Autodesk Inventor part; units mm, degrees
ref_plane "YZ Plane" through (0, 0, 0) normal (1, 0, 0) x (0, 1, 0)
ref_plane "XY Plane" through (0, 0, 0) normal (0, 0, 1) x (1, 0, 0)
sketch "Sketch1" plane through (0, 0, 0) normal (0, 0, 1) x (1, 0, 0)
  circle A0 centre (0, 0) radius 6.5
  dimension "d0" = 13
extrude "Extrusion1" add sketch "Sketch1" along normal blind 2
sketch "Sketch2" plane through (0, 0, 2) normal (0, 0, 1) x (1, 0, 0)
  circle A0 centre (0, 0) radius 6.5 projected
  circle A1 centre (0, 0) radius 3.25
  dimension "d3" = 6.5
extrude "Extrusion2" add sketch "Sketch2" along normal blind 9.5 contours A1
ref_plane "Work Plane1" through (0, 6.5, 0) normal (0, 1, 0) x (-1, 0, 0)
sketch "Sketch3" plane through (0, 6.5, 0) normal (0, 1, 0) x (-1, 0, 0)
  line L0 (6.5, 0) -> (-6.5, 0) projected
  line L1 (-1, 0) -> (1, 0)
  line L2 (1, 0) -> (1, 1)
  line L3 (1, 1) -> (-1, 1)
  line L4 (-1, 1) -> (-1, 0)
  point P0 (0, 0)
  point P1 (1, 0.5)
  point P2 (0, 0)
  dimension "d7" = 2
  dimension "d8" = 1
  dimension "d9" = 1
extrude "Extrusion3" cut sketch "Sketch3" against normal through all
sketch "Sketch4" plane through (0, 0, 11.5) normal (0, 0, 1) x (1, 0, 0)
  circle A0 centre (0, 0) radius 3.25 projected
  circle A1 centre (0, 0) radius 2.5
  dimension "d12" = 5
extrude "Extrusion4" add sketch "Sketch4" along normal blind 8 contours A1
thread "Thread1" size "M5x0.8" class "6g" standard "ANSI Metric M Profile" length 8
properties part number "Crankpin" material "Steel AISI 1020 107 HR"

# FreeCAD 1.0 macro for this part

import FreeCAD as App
import Part
import Sketcher
Q = App.Units.Quantity


def add_polygon(sketch, points):
    """Adds a closed chain of lines whose ends are joined by coincident constraints."""
    first, n = sketch.GeometryCount, len(points)
    for a, b in zip(points, points[1:] + points[:1]):
        sketch.addGeometry(Part.LineSegment(App.Vector(*a, 0), App.Vector(*b, 0)), False)
    for i in range(n):
        sketch.addConstraint(Sketcher.Constraint("Coincident", first + i, 2, first + (i + 1) % n, 1))

doc = App.newDocument("Part")
body = doc.addObject("PartDesign::Body", "Body")

# Sketch on XY plane
sketch1 = body.newObject("Sketcher::SketchObject", "Sketch")
sketch1.AttachmentSupport = (doc.getObject("XY_Plane"), [""])
sketch1.MapMode = "FlatFace"
sketch1.addGeometry(Part.Circle(App.Vector(0, 0, 0), App.Vector(0, 0, 1), 6), False)
sketch1.addConstraint(Sketcher.Constraint("Coincident", 0, 3, -1, 1))
sketch1.addConstraint(Sketcher.Constraint("Diameter", 0, Q("13 mm")))
pad1 = body.newObject("PartDesign::Pad", "Pad")
pad1.Profile = sketch1
pad1.Length = 2

# Sketch on XY plane
sketch2 = body.newObject("Sketcher::SketchObject", "Sketch001")
sketch2.AttachmentSupport = (doc.getObject("XY_Plane"), [""])
sketch2.MapMode = "FlatFace"
sketch2.AttachmentOffset = App.Placement(App.Vector(0, 0, 2), App.Rotation())
sketch2.addGeometry(Part.Circle(App.Vector(0, 0, 0), App.Vector(0, 0, 1), 3.2), False)
sketch2.addConstraint(Sketcher.Constraint("Coincident", 0, 3, -1, 1))
sketch2.addConstraint(Sketcher.Constraint("Diameter", 0, Q("6.5 mm")))
pad2 = body.newObject("PartDesign::Pad", "Pad001")
pad2.Profile = sketch2
pad2.Length = 9.5

# Sketch on XZ plane
sketch3 = body.newObject("Sketcher::SketchObject", "Sketch002")
sketch3.AttachmentSupport = (doc.getObject("XZ_Plane"), [""])
sketch3.MapMode = "FlatFace"
sketch3.AttachmentOffset = App.Placement(App.Vector(0, 0, -6.5), App.Rotation())
add_polygon(sketch3, [(1, 0), (-1, 0), (-1, 1), (1, 1)])  # lines 0-3
sketch3.addConstraint(Sketcher.Constraint("Horizontal", 0))
sketch3.addConstraint(Sketcher.Constraint("Vertical", 1))
sketch3.addConstraint(Sketcher.Constraint("Horizontal", 2))
sketch3.addConstraint(Sketcher.Constraint("Vertical", 3))
sketch3.addConstraint(Sketcher.Constraint("Symmetric", 0, 2, 3, 2, -1, 1))
sketch3.addConstraint(Sketcher.Constraint("DistanceX", 0, 2, 0, 1, Q("2 mm")))
sketch3.addConstraint(Sketcher.Constraint("DistanceY", 1, 1, 1, 2, Q("1 mm")))
pocket1 = body.newObject("PartDesign::Pocket", "Pocket")
pocket1.Profile = sketch3
pocket1.Type = "ThroughAll"
pocket1.Reversed = True

# Sketch on XY plane
sketch4 = body.newObject("Sketcher::SketchObject", "Sketch003")
sketch4.AttachmentSupport = (doc.getObject("XY_Plane"), [""])
sketch4.MapMode = "FlatFace"
sketch4.AttachmentOffset = App.Placement(App.Vector(0, 0, 11.5), App.Rotation())
sketch4.addGeometry(Part.Circle(App.Vector(0, 0, 0), App.Vector(0, 0, 1), 2.5), False)
sketch4.addConstraint(Sketcher.Constraint("Coincident", 0, 3, -1, 1))
sketch4.addConstraint(Sketcher.Constraint("Diameter", 0, Q("5 mm")))
pad3 = body.newObject("PartDesign::Pad", "Pad002")
pad3.Profile = sketch4
pad3.Length = 8

doc.recompute()
